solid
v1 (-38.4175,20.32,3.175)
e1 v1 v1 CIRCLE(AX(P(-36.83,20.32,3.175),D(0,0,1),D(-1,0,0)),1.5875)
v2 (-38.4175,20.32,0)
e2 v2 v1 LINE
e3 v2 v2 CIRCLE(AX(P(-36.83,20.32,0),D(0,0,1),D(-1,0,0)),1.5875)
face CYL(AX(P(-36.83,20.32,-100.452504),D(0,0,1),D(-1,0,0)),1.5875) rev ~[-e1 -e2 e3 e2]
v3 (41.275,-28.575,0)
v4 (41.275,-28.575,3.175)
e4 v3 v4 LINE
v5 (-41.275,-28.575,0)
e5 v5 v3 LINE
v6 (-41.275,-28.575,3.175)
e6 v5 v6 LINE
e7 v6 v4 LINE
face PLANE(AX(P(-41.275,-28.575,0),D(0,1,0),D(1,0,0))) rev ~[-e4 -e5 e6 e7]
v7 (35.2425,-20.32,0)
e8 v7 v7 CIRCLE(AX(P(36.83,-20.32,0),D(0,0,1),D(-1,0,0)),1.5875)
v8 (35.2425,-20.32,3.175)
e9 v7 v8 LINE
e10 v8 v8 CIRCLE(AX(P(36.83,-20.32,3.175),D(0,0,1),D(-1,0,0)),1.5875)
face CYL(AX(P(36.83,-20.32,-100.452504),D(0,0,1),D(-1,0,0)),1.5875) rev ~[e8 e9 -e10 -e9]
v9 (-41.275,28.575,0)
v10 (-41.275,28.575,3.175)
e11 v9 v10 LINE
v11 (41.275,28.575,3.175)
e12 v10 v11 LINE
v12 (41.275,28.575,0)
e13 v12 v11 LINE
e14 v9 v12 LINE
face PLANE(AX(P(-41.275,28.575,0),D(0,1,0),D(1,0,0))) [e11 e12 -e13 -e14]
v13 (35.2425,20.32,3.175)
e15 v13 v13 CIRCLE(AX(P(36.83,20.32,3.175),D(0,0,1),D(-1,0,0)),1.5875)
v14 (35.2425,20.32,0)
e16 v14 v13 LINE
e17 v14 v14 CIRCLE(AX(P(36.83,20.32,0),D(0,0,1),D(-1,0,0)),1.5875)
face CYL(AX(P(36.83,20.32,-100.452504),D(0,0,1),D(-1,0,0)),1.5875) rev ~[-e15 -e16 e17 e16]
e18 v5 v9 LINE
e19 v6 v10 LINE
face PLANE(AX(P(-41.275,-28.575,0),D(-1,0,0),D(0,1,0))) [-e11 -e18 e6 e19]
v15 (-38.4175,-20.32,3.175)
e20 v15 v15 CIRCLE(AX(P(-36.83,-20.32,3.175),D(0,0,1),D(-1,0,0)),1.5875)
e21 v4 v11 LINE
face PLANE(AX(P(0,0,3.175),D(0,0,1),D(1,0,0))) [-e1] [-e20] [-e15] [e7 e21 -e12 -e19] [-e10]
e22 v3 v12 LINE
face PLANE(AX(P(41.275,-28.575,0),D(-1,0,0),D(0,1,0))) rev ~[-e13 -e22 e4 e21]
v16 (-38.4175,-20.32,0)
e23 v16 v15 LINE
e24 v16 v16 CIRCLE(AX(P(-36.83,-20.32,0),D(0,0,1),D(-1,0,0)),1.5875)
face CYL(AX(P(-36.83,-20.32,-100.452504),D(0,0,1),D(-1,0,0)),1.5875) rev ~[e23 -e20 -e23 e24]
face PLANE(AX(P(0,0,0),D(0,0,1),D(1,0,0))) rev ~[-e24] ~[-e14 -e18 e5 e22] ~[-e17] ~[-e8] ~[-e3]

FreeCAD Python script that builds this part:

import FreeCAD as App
import Part
import Sketcher
from FreeCAD import Vector
Q = App.Units.Quantity

doc = App.newDocument("Part")
body = doc.addObject("PartDesign::Body", "Body")

sketch1 = body.newObject("Sketcher::SketchObject", "Sketch")
sketch1.AttachmentSupport = (doc.getObject("XY_Plane"), [""])
sketch1.MapMode = "FlatFace"
sketch1.addGeometry(Part.LineSegment(Vector(-41, 29, 0), Vector(-41, -29, 0)), False)
sketch1.addGeometry(Part.LineSegment(Vector(-41, -29, 0), Vector(41, -29, 0)), False)
sketch1.addGeometry(Part.LineSegment(Vector(41, -29, 0), Vector(41, 29, 0)), False)
sketch1.addGeometry(Part.LineSegment(Vector(41, 29, 0), Vector(-41, 29, 0)), False)
sketch1.addConstraint(Sketcher.Constraint("Coincident", 0, 2, 1, 1))
sketch1.addConstraint(Sketcher.Constraint("Coincident", 1, 2, 2, 1))
sketch1.addConstraint(Sketcher.Constraint("Coincident", 2, 2, 3, 1))
sketch1.addConstraint(Sketcher.Constraint("Coincident", 3, 2, 0, 1))
sketch1.addConstraint(Sketcher.Constraint("Vertical", 0))
sketch1.addConstraint(Sketcher.Constraint("Horizontal", 1))
sketch1.addConstraint(Sketcher.Constraint("Vertical", 2))
sketch1.addConstraint(Sketcher.Constraint("Horizontal", 3))
sketch1.addConstraint(Sketcher.Constraint("Symmetric", 0, 2, 2, 2, -1, 1))
sketch1.addConstraint(Sketcher.Constraint("DistanceX", 1, 1, 1, 2, Q("3.25 in")))
sketch1.addConstraint(Sketcher.Constraint("DistanceY", 0, 2, 0, 1, Q("2.25 in")))
pad1 = body.newObject("PartDesign::Pad", "Pad")
pad1.Profile = sketch1
pad1.Length = Q("0.125 in")

sketch2 = body.newObject("Sketcher::SketchObject", "Sketch001")
sketch2.AttachmentSupport = (doc.getObject("XY_Plane"), [""])
sketch2.MapMode = "FlatFace"
sketch2.addGeometry(Part.Circle(Vector(36.8, 20.3, 0), Vector(0, 0, 1), 1.6), False)
sketch2.addGeometry(Part.Circle(Vector(36.8, -20.3, 0), Vector(0, 0, 1), 1.6), False)
sketch2.addGeometry(Part.Circle(Vector(-36.8, -20.3, 0), Vector(0, 0, 1), 1.6), False)
sketch2.addGeometry(Part.Circle(Vector(-36.8, 20.3, 0), Vector(0, 0, 1), 1.6), False)
sketch2.addConstraint(Sketcher.Constraint("Equal", 0, 1))
sketch2.addConstraint(Sketcher.Constraint("Equal", 1, 2))
sketch2.addConstraint(Sketcher.Constraint("Equal", 2, 3))
sketch2.addConstraint(Sketcher.Constraint("Symmetric", 0, 3, 2, 3, -1, 1))
sketch2.addConstraint(Sketcher.Constraint("Symmetric", 1, 3, 3, 3, -1, 1))
sketch2.addConstraint(Sketcher.Constraint("Symmetric", 1, 3, 2, 3, -2))
sketch2.addConstraint(Sketcher.Constraint("Diameter", 0, Q("0.125 in")))
sketch2.addConstraint(Sketcher.Constraint("DistanceY", -1, 1, 0, 3, Q("0.8 in")))
sketch2.addConstraint(Sketcher.Constraint("DistanceX", 2, 3, 1, 3, Q("2.9 in")))
doc.recompute()
hole = body.newObject("PartDesign::Hole", "Hole")
hole.Profile = sketch2
hole.ThreadType = "None"
hole.Diameter = Q("0.125 in")
hole.DepthType = "ThroughAll"
hole.Reversed = True

doc.recompute()
